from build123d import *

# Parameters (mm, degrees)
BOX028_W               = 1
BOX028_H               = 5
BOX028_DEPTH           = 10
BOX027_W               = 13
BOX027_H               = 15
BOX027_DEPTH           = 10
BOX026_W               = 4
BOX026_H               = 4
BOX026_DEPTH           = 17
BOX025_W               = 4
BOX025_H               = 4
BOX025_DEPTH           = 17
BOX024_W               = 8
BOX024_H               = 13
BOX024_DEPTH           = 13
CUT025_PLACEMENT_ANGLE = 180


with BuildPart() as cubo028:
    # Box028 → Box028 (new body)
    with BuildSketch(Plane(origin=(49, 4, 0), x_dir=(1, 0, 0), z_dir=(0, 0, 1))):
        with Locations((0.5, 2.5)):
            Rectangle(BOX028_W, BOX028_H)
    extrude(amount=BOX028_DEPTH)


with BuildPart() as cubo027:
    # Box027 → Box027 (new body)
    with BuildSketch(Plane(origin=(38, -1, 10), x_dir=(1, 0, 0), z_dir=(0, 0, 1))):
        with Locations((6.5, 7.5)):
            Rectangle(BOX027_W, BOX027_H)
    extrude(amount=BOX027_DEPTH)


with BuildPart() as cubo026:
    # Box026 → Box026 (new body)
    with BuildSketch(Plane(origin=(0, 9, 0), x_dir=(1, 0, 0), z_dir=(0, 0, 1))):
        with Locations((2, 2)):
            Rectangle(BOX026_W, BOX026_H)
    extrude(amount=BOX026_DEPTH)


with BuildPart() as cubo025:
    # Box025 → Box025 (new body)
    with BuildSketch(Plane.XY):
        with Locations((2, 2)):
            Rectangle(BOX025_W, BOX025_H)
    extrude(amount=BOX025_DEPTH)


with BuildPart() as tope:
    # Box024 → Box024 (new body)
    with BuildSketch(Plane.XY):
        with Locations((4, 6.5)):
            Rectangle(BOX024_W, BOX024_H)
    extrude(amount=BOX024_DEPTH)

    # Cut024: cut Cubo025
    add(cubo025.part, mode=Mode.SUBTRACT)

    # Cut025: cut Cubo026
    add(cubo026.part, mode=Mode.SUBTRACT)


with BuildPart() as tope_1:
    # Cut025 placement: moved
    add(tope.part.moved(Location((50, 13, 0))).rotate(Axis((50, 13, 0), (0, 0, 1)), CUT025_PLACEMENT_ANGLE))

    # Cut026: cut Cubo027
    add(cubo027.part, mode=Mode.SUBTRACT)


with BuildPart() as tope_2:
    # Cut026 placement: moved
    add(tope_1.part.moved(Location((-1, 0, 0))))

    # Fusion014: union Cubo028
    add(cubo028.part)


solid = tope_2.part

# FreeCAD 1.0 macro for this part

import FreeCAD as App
import Part
import Sketcher

V = App.Vector

doc = App.newDocument("Part")
body = doc.addObject("PartDesign::Body", "Body")

# Sketch on XY plane
sketch1 = body.newObject("Sketcher::SketchObject", "Sketch")
sketch1.AttachmentSupport = (doc.getObject("XY_Plane"), [""])
sketch1.MapMode = "FlatFace"
sketch1.addGeometry(Part.LineSegment(V(49, 9, 0), V(49, 4, 0)), False)
sketch1.addGeometry(Part.LineSegment(V(49, 4, 0), V(50, 4, 0)), False)
sketch1.addGeometry(Part.LineSegment(V(50, 4, 0), V(50, 9, 0)), False)
sketch1.addGeometry(Part.LineSegment(V(50, 9, 0), V(49, 9, 0)), False)
sketch1.addConstraint(Sketcher.Constraint("Coincident", 0, 2, 1, 1))
sketch1.addConstraint(Sketcher.Constraint("Coincident", 1, 2, 2, 1))
sketch1.addConstraint(Sketcher.Constraint("Coincident", 2, 2, 3, 1))
sketch1.addConstraint(Sketcher.Constraint("Coincident", 3, 2, 0, 1))
sketch1.addConstraint(Sketcher.Constraint("Vertical", 0))
sketch1.addConstraint(Sketcher.Constraint("Horizontal", 1))
sketch1.addConstraint(Sketcher.Constraint("Vertical", 2))
sketch1.addConstraint(Sketcher.Constraint("Horizontal", 3))
sketch1.addConstraint(Sketcher.Constraint("DistanceX", 1, 1, 1, 2, 1.0))
sketch1.addConstraint(Sketcher.Constraint("DistanceY", 0, 2, 0, 1, 5.0))
sketch1.addConstraint(Sketcher.Constraint("DistanceX", -1, 1, 0, 2, 49.0))
sketch1.addConstraint(Sketcher.Constraint("DistanceY", -1, 1, 0, 2, 4.0))
pad1 = body.newObject("PartDesign::Pad", "Pad")
pad1.Profile = sketch1
pad1.Length = 10
body2 = doc.addObject("PartDesign::Body", "Body001")

# Sketch on XY plane
sketch2 = body2.newObject("Sketcher::SketchObject", "Sketch001")
sketch2.AttachmentSupport = (doc.getObject("XY_Plane001"), [""])
sketch2.MapMode = "FlatFace"
sketch2.AttachmentOffset = App.Placement(V(0, 0, 10), App.Rotation())
sketch2.addGeometry(Part.LineSegment(V(38, 14, 0), V(38, -1, 0)), False)
sketch2.addGeometry(Part.LineSegment(V(38, -1, 0), V(51, -1, 0)), False)
sketch2.addGeometry(Part.LineSegment(V(51, -1, 0), V(51, 14, 0)), False)
sketch2.addGeometry(Part.LineSegment(V(51, 14, 0), V(38, 14, 0)), False)
sketch2.addConstraint(Sketcher.Constraint("Coincident", 0, 2, 1, 1))
sketch2.addConstraint(Sketcher.Constraint("Coincident", 1, 2, 2, 1))
sketch2.addConstraint(Sketcher.Constraint("Coincident", 2, 2, 3, 1))
sketch2.addConstraint(Sketcher.Constraint("Coincident", 3, 2, 0, 1))
sketch2.addConstraint(Sketcher.Constraint("Vertical", 0))
sketch2.addConstraint(Sketcher.Constraint("Horizontal", 1))
sketch2.addConstraint(Sketcher.Constraint("Vertical", 2))
sketch2.addConstraint(Sketcher.Constraint("Horizontal", 3))
sketch2.addConstraint(Sketcher.Constraint("DistanceX", 1, 1, 1, 2, 13.0))
sketch2.addConstraint(Sketcher.Constraint("DistanceY", 0, 2, 0, 1, 15.0))
sketch2.addConstraint(Sketcher.Constraint("DistanceX", -1, 1, 0, 2, 38.0))
sketch2.addConstraint(Sketcher.Constraint("DistanceY", 0, 2, -1, 1, 1.0))
pad2 = body2.newObject("PartDesign::Pad", "Pad001")
pad2.Profile = sketch2
pad2.Length = 10
body3 = doc.addObject("PartDesign::Body", "Body002")

# Sketch on XY plane
sketch3 = body3.newObject("Sketcher::SketchObject", "Sketch002")
sketch3.AttachmentSupport = (doc.getObject("XY_Plane002"), [""])
sketch3.MapMode = "FlatFace"
sketch3.addGeometry(Part.LineSegment(V(0, 13, 0), V(0, 9, 0)), False)
sketch3.addGeometry(Part.LineSegment(V(0, 9, 0), V(4, 9, 0)), False)
sketch3.addGeometry(Part.LineSegment(V(4, 9, 0), V(4, 13, 0)), False)
sketch3.addGeometry(Part.LineSegment(V(4, 13, 0), V(0, 13, 0)), False)
sketch3.addConstraint(Sketcher.Constraint("Coincident", 0, 2, 1, 1))
sketch3.addConstraint(Sketcher.Constraint("Coincident", 1, 2, 2, 1))
sketch3.addConstraint(Sketcher.Constraint("Coincident", 2, 2, 3, 1))
sketch3.addConstraint(Sketcher.Constraint("Coincident", 3, 2, 0, 1))
sketch3.addConstraint(Sketcher.Constraint("Vertical", 0))
sketch3.addConstraint(Sketcher.Constraint("Horizontal", 1))
sketch3.addConstraint(Sketcher.Constraint("Vertical", 2))
sketch3.addConstraint(Sketcher.Constraint("Horizontal", 3))
sketch3.addConstraint(Sketcher.Constraint("PointOnObject", 0, 2, -2))
sketch3.addConstraint(Sketcher.Constraint("Equal", 3, 0))
sketch3.addConstraint(Sketcher.Constraint("DistanceX", 1, 1, 1, 2, 4.0))
sketch3.addConstraint(Sketcher.Constraint("DistanceY", -1, 1, 0, 2, 9.0))
pad3 = body3.newObject("PartDesign::Pad", "Pad002")
pad3.Profile = sketch3
pad3.Length = 17
body4 = doc.addObject("PartDesign::Body", "Body003")

# Sketch on XY plane
sketch4 = body4.newObject("Sketcher::SketchObject", "Sketch003")
sketch4.AttachmentSupport = (doc.getObject("XY_Plane003"), [""])
sketch4.MapMode = "FlatFace"
sketch4.addGeometry(Part.LineSegment(V(0, 4, 0), V(0, 0, 0)), False)
sketch4.addGeometry(Part.LineSegment(V(0, 0, 0), V(4, 0, 0)), False)
sketch4.addGeometry(Part.LineSegment(V(4, 0, 0), V(4, 4, 0)), False)
sketch4.addGeometry(Part.LineSegment(V(4, 4, 0), V(0, 4, 0)), False)
sketch4.addConstraint(Sketcher.Constraint("Coincident", 0, 2, 1, 1))
sketch4.addConstraint(Sketcher.Constraint("Coincident", 1, 2, 2, 1))
sketch4.addConstraint(Sketcher.Constraint("Coincident", 2, 2, 3, 1))
sketch4.addConstraint(Sketcher.Constraint("Coincident", 3, 2, 0, 1))
sketch4.addConstraint(Sketcher.Constraint("Vertical", 0))
sketch4.addConstraint(Sketcher.Constraint("Horizontal", 1))
sketch4.addConstraint(Sketcher.Constraint("Vertical", 2))
sketch4.addConstraint(Sketcher.Constraint("Horizontal", 3))
sketch4.addConstraint(Sketcher.Constraint("Coincident", 0, 2, -1, 1))
sketch4.addConstraint(Sketcher.Constraint("Equal", 3, 0))
sketch4.addConstraint(Sketcher.Constraint("DistanceX", 1, 1, 1, 2, 4.0))
pad4 = body4.newObject("PartDesign::Pad", "Pad003")
pad4.Profile = sketch4
pad4.Length = 17
body5 = doc.addObject("PartDesign::Body", "Body004")

# Sketch on XY plane
sketch5 = body5.newObject("Sketcher::SketchObject", "Sketch004")
sketch5.AttachmentSupport = (doc.getObject("XY_Plane004"), [""])
sketch5.MapMode = "FlatFace"
sketch5.addGeometry(Part.LineSegment(V(0, 13, 0), V(0, 0, 0)), False)
sketch5.addGeometry(Part.LineSegment(V(0, 0, 0), V(8, 0, 0)), False)
sketch5.addGeometry(Part.LineSegment(V(8, 0, 0), V(8, 13, 0)), False)
sketch5.addGeometry(Part.LineSegment(V(8, 13, 0), V(0, 13, 0)), False)
sketch5.addConstraint(Sketcher.Constraint("Coincident", 0, 2, 1, 1))
sketch5.addConstraint(Sketcher.Constraint("Coincident", 1, 2, 2, 1))
sketch5.addConstraint(Sketcher.Constraint("Coincident", 2, 2, 3, 1))
sketch5.addConstraint(Sketcher.Constraint("Coincident", 3, 2, 0, 1))
sketch5.addConstraint(Sketcher.Constraint("Vertical", 0))
sketch5.addConstraint(Sketcher.Constraint("Horizontal", 1))
sketch5.addConstraint(Sketcher.Constraint("Vertical", 2))
sketch5.addConstraint(Sketcher.Constraint("Horizontal", 3))
sketch5.addConstraint(Sketcher.Constraint("Coincident", 0, 2, -1, 1))
sketch5.addConstraint(Sketcher.Constraint("DistanceX", 1, 1, 1, 2, 8.0))
sketch5.addConstraint(Sketcher.Constraint("DistanceY", 0, 2, 0, 1, 13.0))
pad5 = body5.newObject("PartDesign::Pad", "Pad004")
pad5.Profile = sketch5
pad5.Length = 13
doc.recompute()

boolean = body5.newObject("PartDesign::Boolean", "Boolean")
boolean.Type = "Cut"
boolean.addObjects([body4])
doc.recompute()

boolean2 = body5.newObject("PartDesign::Boolean", "Boolean001")
boolean2.Type = "Cut"
boolean2.addObjects([body3])
body6 = doc.addObject("PartDesign::Body", "Body005")
doc.recompute()

body5.Placement = App.Placement(V(50, 13, 0), App.Rotation(V(0, 0, 1), 180))
boolean3 = body6.newObject("PartDesign::Boolean", "Boolean002")
boolean3.Type = "Fuse"
boolean3.addObjects([body5])
doc.recompute()

boolean4 = body6.newObject("PartDesign::Boolean", "Boolean003")
boolean4.Type = "Cut"
boolean4.addObjects([body2])
body7 = doc.addObject("PartDesign::Body", "Body006")
doc.recompute()

body6.Placement = App.Placement(V(-1, 0, 0), App.Rotation(V(0, 0, 1), 0))
boolean5 = body7.newObject("PartDesign::Boolean", "Boolean004")
boolean5.Type = "Fuse"
boolean5.addObjects([body6])
doc.recompute()

boolean6 = body7.newObject("PartDesign::Boolean", "Boolean005")
boolean6.Type = "Fuse"
boolean6.addObjects([body])

doc.recompute()
